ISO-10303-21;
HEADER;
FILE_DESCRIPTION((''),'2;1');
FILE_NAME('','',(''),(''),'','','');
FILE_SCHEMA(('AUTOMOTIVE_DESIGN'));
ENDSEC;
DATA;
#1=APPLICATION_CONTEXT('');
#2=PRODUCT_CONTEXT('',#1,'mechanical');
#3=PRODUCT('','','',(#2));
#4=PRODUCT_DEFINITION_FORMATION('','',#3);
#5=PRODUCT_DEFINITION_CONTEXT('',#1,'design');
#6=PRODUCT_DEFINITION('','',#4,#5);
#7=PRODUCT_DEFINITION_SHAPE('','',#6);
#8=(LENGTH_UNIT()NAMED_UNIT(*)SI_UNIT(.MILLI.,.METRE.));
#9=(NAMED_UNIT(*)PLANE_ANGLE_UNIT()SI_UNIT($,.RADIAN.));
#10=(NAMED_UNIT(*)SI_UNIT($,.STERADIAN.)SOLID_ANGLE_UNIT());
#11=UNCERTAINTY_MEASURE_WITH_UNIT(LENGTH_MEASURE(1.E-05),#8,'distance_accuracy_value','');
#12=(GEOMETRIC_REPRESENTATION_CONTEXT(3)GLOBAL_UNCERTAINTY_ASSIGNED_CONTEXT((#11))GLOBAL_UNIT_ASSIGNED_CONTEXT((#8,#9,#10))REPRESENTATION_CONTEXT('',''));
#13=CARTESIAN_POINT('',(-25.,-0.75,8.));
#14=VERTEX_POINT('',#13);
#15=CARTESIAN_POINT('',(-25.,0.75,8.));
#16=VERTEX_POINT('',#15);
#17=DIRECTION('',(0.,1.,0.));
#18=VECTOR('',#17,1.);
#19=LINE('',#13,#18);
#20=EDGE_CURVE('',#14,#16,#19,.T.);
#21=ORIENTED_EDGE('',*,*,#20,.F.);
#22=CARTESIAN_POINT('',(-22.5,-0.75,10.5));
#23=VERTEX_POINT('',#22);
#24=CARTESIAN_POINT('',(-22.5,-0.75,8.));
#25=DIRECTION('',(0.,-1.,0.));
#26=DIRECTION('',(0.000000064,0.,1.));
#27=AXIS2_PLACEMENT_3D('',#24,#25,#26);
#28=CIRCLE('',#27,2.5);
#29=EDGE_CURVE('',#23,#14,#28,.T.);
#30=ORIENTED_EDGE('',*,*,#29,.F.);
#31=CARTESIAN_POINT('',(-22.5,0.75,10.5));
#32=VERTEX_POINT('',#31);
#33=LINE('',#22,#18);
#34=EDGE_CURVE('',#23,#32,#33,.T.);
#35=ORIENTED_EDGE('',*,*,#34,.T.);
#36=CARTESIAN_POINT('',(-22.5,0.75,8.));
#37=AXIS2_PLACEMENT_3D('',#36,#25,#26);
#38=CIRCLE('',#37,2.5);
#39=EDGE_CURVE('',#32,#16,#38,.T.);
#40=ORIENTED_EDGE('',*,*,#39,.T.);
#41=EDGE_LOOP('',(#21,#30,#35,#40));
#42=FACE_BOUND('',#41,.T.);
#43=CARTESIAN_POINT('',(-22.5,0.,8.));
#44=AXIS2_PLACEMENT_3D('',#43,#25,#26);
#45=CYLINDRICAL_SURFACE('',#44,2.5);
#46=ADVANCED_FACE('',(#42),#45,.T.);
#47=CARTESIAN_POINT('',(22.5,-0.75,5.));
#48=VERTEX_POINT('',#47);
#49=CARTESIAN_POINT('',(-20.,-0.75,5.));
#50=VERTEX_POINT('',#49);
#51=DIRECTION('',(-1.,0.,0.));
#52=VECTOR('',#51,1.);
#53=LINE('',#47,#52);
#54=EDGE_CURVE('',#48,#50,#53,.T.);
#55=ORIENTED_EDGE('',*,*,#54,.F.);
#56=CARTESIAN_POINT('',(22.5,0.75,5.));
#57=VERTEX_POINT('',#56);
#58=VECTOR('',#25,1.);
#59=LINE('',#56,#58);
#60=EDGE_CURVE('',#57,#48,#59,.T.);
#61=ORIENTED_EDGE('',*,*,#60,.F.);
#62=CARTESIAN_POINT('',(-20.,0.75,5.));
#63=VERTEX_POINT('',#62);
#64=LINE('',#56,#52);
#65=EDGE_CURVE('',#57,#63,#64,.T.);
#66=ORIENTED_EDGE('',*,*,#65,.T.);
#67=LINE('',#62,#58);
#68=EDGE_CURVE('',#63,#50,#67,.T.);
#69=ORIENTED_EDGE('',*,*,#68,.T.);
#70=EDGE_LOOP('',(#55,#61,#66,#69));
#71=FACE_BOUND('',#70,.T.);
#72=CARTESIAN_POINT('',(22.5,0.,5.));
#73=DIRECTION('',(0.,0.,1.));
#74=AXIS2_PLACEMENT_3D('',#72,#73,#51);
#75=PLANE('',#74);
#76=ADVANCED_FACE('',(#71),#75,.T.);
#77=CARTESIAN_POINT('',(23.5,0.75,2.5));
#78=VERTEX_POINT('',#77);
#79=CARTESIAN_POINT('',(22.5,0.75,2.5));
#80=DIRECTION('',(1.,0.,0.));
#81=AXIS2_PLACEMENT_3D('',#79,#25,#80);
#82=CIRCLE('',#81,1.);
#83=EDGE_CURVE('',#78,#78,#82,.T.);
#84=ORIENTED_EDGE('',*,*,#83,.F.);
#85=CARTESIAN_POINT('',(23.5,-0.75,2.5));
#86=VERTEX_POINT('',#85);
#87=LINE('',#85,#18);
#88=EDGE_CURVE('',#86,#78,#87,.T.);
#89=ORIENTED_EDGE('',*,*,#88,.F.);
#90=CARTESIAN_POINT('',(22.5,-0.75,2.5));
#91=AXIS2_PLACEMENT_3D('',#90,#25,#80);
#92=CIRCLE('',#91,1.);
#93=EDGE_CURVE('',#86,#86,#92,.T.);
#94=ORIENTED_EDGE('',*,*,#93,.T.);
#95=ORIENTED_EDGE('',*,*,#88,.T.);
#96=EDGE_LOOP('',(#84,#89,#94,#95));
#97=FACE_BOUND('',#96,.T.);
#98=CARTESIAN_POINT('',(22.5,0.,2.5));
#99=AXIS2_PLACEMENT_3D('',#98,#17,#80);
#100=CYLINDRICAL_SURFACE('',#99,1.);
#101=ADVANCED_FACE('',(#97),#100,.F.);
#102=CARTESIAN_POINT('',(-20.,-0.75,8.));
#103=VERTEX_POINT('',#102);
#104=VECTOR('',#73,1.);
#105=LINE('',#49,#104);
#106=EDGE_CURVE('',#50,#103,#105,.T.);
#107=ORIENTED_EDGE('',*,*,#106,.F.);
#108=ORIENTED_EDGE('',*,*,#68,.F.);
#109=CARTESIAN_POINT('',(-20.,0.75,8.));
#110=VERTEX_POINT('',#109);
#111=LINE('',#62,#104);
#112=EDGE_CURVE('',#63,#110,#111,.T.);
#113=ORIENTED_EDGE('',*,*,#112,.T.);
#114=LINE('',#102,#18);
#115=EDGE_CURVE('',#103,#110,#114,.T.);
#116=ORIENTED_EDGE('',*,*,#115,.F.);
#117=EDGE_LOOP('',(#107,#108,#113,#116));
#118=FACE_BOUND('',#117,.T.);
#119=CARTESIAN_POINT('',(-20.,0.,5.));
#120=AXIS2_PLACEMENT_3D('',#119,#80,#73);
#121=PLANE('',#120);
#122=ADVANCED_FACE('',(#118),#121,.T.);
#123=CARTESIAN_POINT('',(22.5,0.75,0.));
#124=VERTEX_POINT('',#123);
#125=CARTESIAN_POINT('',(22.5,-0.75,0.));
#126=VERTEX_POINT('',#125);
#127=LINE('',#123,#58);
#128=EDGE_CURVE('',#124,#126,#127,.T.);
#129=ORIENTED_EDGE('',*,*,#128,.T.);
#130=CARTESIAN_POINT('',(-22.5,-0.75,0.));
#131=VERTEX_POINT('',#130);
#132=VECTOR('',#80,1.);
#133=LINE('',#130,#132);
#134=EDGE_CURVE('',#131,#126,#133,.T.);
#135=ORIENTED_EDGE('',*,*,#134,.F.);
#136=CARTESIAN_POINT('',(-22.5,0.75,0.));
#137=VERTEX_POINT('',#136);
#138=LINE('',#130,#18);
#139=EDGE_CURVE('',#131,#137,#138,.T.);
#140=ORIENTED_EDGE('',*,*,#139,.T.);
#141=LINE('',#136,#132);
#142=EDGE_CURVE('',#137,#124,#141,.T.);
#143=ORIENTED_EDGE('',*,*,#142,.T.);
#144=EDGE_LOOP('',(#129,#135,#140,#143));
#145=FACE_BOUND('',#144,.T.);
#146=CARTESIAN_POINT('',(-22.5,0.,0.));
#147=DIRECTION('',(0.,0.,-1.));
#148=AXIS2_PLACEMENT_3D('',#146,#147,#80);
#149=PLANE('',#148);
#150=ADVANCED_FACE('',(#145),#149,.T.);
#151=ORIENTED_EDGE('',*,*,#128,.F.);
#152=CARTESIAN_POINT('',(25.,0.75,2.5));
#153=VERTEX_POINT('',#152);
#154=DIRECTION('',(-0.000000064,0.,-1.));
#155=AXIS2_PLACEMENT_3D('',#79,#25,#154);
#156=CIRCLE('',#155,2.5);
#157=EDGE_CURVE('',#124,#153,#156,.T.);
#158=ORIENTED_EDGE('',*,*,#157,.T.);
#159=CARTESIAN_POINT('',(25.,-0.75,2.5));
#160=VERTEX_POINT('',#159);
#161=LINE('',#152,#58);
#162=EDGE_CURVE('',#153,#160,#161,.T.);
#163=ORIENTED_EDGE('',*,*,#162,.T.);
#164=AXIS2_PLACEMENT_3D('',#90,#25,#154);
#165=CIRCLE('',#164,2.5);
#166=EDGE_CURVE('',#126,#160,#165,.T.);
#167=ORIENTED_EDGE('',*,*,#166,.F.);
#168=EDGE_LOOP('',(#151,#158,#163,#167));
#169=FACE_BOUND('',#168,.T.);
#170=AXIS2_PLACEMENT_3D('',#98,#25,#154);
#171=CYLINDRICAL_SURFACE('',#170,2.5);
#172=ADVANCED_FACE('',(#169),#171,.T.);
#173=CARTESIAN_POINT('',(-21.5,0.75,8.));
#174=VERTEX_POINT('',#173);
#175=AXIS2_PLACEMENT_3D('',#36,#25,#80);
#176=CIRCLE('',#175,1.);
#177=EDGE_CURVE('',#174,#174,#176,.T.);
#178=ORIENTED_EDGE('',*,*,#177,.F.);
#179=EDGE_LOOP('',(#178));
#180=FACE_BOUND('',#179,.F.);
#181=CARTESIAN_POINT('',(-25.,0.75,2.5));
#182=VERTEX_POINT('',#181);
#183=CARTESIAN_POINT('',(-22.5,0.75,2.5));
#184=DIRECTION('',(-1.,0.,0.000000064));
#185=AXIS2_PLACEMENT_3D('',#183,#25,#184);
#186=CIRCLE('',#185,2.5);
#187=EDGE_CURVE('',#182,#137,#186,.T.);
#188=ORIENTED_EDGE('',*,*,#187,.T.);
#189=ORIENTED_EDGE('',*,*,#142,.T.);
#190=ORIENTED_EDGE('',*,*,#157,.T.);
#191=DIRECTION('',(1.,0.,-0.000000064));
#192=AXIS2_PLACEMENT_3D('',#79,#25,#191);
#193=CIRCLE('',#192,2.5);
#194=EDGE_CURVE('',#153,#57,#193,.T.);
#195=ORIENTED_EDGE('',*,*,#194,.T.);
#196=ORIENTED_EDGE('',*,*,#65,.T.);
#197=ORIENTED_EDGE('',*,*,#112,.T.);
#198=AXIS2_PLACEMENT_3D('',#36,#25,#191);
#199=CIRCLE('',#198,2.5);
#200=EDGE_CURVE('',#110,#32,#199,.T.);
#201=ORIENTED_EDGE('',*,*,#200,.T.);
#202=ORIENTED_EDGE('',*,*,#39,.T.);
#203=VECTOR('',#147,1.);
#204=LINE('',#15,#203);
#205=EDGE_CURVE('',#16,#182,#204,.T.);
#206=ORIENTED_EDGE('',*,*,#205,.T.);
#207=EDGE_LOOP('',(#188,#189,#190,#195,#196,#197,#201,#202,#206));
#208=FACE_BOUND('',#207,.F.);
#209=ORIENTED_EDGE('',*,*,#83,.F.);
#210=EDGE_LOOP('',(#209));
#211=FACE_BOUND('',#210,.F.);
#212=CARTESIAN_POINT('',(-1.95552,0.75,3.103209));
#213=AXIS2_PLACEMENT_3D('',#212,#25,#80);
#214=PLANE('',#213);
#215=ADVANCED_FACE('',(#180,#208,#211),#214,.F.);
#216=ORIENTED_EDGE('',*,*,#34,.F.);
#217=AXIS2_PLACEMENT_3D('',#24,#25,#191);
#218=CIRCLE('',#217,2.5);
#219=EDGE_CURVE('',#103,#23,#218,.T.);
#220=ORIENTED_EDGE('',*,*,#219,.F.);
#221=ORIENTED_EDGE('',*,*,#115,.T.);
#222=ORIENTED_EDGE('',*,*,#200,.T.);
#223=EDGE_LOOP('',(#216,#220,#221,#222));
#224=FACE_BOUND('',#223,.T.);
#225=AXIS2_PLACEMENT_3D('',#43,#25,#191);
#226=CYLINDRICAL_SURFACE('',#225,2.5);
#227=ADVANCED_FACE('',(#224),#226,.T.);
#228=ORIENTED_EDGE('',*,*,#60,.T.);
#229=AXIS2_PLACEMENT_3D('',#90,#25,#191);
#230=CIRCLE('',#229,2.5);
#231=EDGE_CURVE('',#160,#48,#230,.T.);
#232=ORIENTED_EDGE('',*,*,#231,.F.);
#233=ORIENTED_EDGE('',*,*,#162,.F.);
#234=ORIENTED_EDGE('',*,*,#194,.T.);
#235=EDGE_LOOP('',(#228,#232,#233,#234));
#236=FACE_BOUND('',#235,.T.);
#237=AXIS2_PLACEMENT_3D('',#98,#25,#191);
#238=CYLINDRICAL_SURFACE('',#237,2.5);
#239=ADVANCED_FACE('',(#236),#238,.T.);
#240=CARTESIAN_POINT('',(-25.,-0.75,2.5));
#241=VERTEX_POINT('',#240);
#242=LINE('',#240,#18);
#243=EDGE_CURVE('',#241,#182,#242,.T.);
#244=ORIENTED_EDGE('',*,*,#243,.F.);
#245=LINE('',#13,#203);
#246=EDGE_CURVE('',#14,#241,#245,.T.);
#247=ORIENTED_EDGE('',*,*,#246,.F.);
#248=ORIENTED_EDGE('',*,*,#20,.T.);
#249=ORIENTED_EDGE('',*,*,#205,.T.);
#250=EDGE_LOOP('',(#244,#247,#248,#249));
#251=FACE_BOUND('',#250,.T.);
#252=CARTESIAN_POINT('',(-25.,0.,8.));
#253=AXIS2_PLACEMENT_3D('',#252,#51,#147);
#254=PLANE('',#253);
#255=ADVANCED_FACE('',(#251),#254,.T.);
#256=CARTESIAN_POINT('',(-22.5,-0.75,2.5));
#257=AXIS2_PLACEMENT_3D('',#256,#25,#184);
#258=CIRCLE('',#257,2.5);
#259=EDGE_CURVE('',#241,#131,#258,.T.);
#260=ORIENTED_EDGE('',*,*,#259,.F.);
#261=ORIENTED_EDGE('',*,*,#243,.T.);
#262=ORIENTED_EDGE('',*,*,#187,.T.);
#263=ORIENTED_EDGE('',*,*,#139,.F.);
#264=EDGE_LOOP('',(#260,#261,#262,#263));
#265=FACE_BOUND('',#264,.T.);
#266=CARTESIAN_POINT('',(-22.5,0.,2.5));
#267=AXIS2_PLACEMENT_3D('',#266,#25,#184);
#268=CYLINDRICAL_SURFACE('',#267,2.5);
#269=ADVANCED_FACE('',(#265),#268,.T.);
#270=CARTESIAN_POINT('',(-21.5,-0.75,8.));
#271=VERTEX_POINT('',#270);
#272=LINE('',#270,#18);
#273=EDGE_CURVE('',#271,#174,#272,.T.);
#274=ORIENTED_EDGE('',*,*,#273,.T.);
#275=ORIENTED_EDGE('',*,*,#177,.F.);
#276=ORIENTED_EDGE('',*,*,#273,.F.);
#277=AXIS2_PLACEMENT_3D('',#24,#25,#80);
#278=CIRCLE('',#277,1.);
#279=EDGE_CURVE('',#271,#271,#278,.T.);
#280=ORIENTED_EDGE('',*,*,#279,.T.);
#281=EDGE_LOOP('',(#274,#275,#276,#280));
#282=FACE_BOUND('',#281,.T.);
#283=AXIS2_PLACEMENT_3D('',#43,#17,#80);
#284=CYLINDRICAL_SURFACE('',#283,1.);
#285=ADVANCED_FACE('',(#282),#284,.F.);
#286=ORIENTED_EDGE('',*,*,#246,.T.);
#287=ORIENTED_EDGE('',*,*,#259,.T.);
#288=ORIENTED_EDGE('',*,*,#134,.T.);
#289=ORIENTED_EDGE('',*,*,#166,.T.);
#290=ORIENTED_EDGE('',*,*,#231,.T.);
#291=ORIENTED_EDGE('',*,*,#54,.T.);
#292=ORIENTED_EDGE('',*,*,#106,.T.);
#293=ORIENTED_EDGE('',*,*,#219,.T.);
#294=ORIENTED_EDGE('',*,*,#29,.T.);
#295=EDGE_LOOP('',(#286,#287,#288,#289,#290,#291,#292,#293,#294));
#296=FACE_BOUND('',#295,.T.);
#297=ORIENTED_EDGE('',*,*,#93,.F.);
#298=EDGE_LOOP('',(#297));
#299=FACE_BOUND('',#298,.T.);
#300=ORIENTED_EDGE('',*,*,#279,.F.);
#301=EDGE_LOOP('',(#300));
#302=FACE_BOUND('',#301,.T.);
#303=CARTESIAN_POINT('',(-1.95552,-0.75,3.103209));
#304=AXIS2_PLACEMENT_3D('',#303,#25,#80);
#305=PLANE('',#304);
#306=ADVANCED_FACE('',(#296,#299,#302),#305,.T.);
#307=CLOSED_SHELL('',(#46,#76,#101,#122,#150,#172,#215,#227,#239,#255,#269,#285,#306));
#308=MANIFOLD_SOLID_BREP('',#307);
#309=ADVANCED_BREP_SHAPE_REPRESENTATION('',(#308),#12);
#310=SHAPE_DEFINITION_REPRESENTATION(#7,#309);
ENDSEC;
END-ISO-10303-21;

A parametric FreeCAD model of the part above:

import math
import FreeCAD as App
import Part
import Sketcher
from FreeCAD import Vector
Q = App.Units.Quantity

doc = App.newDocument("Part")
body = doc.addObject("PartDesign::Body", "Body")

# Sketch on XZ plane
sketch1 = body.newObject("Sketcher::SketchObject", "Sketch")
sketch1.AttachmentSupport = (doc.getObject("XZ_Plane"), [""])
sketch1.MapMode = "FlatFace"
sketch1.addGeometry(Part.LineSegment(Vector(-22.5, 0, 0), Vector(22.5, 0, 0)), False)
sketch1.addGeometry(Part.ArcOfCircle(Part.Circle(Vector(22.5, 2.5, 0), Vector(0, 0, 1), 2.5), math.radians(-90), math.radians(0)), False)
sketch1.addGeometry(Part.ArcOfCircle(Part.Circle(Vector(22.5, 2.5, 0), Vector(0, 0, 1), 2.5), math.radians(0), math.radians(90)), False)
sketch1.addGeometry(Part.LineSegment(Vector(22.5, 5, 0), Vector(-20, 5, 0)), False)
sketch1.addGeometry(Part.LineSegment(Vector(-20, 5, 0), Vector(-20, 8, 0)), False)
sketch1.addGeometry(Part.ArcOfCircle(Part.Circle(Vector(-22.5, 8, 0), Vector(0, 0, 1), 2.5), math.radians(0), math.radians(90)), False)
sketch1.addGeometry(Part.ArcOfCircle(Part.Circle(Vector(-22.5, 8, 0), Vector(0, 0, 1), 2.5), math.radians(90), math.radians(180)), False)
sketch1.addGeometry(Part.LineSegment(Vector(-25, 8, 0), Vector(-25, 2.5, 0)), False)
sketch1.addGeometry(Part.ArcOfCircle(Part.Circle(Vector(-22.5, 2.5, 0), Vector(0, 0, 1), 2.5), math.radians(180), math.radians(270)), False)
sketch1.addGeometry(Part.Circle(Vector(22.5, 2.5, 0), Vector(0, 0, 1), 1), False)
sketch1.addGeometry(Part.Circle(Vector(-22.5, 8, 0), Vector(0, 0, 1), 1), False)
sketch1.addConstraint(Sketcher.Constraint("Tangent", 0, 2, 1, 1))
sketch1.addConstraint(Sketcher.Constraint("Tangent", 1, 2, 2, 1))
sketch1.addConstraint(Sketcher.Constraint("Tangent", 2, 2, 3, 1))
sketch1.addConstraint(Sketcher.Constraint("Coincident", 3, 2, 4, 1))
sketch1.addConstraint(Sketcher.Constraint("Tangent", 4, 2, 5, 1))
sketch1.addConstraint(Sketcher.Constraint("Tangent", 5, 2, 6, 1))
sketch1.addConstraint(Sketcher.Constraint("Tangent", 6, 2, 7, 1))
sketch1.addConstraint(Sketcher.Constraint("Tangent", 7, 2, 8, 1))
sketch1.addConstraint(Sketcher.Constraint("Tangent", 8, 2, 0, 1))
sketch1.addConstraint(Sketcher.Constraint("Horizontal", 0))
sketch1.addConstraint(Sketcher.Constraint("Horizontal", 3))
sketch1.addConstraint(Sketcher.Constraint("Vertical", 4))
sketch1.addConstraint(Sketcher.Constraint("Vertical", 7))
sketch1.addConstraint(Sketcher.Constraint("Coincident", 9, 3, 1, 3))
sketch1.addConstraint(Sketcher.Constraint("Coincident", 10, 3, 5, 3))
sketch1.addConstraint(Sketcher.Constraint("Equal", 1, 2))
sketch1.addConstraint(Sketcher.Constraint("Equal", 2, 5))
sketch1.addConstraint(Sketcher.Constraint("Equal", 5, 6))
sketch1.addConstraint(Sketcher.Constraint("Equal", 6, 8))
sketch1.addConstraint(Sketcher.Constraint("Equal", 9, 10))
sketch1.addConstraint(Sketcher.Constraint("Symmetric", 0, 2, 8, 2, -1, 1))
sketch1.addConstraint(Sketcher.Constraint("Horizontal", 9, 3, 1, 2))
sketch1.addConstraint(Sketcher.Constraint("Vertical", 10, 3, 5, 2))
sketch1.addConstraint(Sketcher.Constraint("Diameter", 9, Q("2 mm")))
sketch1.addConstraint(Sketcher.Constraint("Radius", 1, Q("2.5 mm")))
sketch1.addConstraint(Sketcher.Constraint("DistanceX", 0, 1, 0, 2, Q("45 mm")))
sketch1.addConstraint(Sketcher.Constraint("DistanceY", 4, 1, 4, 2, Q("3 mm")))
pad1 = body.newObject("PartDesign::Pad", "Pad")
pad1.Profile = sketch1
pad1.Length = 1.5
pad1.Midplane = True

doc.recompute()
